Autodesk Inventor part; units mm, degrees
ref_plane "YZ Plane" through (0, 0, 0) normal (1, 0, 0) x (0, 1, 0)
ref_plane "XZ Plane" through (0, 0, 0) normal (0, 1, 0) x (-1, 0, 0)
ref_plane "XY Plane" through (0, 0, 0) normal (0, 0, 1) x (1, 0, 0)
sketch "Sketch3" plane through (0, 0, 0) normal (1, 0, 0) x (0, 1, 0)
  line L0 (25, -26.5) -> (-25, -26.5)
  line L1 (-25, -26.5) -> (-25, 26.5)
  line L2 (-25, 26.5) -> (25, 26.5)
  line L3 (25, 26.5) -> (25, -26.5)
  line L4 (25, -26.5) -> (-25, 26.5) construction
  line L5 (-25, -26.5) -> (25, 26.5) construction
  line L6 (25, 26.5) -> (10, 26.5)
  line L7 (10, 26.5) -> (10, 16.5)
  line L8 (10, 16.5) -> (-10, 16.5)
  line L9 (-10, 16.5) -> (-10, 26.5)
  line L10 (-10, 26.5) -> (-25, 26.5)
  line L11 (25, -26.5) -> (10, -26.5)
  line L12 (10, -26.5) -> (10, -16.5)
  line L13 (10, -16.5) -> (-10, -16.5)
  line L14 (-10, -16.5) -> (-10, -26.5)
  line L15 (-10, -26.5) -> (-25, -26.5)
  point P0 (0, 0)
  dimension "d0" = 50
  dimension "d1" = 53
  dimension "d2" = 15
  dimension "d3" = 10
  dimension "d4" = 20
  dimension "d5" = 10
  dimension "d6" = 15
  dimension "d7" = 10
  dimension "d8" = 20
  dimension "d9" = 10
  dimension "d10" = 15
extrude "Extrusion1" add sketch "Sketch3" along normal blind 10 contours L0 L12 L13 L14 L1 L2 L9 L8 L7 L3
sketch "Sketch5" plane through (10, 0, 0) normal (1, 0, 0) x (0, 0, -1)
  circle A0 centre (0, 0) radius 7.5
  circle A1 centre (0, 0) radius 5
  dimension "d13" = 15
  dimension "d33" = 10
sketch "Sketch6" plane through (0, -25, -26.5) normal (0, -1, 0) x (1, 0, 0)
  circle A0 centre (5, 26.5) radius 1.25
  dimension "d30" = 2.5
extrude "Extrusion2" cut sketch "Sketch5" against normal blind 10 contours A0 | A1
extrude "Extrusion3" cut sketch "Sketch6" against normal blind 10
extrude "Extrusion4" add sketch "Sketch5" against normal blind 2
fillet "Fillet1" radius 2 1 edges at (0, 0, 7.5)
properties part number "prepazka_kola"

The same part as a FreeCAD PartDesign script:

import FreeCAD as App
import Part
import Sketcher

V = App.Vector


def edges_at(feature, points):
    """Names of the edges that pass closest to the given points."""
    edges = feature.Shape.Edges
    near = lambda p: min(range(len(edges)), key=lambda i: edges[i].distToShape(Part.Vertex(*p))[0])
    return sorted({f"Edge{near(p) + 1}" for p in points})

doc = App.newDocument("Part")
params = doc.addObject("Spreadsheet::Sheet", "Params")
for row, (alias, value) in enumerate([
    ("sketch1_width", "15 mm"),
    ("sketch1_width2", "20 mm"),
    ("sketch1_height", "53 mm"),
    ("sketch1_height2", "10 mm"),
    ("pad1_length", "10 mm"),
    ("sketch2_diameter", "15 mm"),
    ("pocket1_length", "10 mm"),
    ("sketch3_diameter", "2.5 mm"),
    ("pocket2_length", "10 mm"),
    ("sketch4_diameter", "15 mm"),
    ("sketch4_diameter2", "10 mm"),
    ("pad2_length", "2 mm"),
    ("fillet_radius", "2 mm"),
], start=1):
    params.set(f"A{row}", alias)
    params.set(f"B{row}", "=" + value)
    params.setAlias(f"B{row}", alias)

body = doc.addObject("PartDesign::Body", "Body")

sketch1 = body.newObject("Sketcher::SketchObject", "Sketch")
sketch1.AttachmentSupport = (doc.getObject("YZ_Plane"), [""])
sketch1.MapMode = "FlatFace"
sketch1.addGeometry(Part.LineSegment(V(10, -26.5, 0), V(25, -26.5, 0)), False)
sketch1.addGeometry(Part.LineSegment(V(25, -26.5, 0), V(25, 26.5, 0)), False)
sketch1.addGeometry(Part.LineSegment(V(25, 26.5, 0), V(10, 26.5, 0)), False)
sketch1.addGeometry(Part.LineSegment(V(10, 26.5, 0), V(10, 16.5, 0)), False)
sketch1.addGeometry(Part.LineSegment(V(10, 16.5, 0), V(-10, 16.5, 0)), False)
sketch1.addGeometry(Part.LineSegment(V(-10, 16.5, 0), V(-10, 26.5, 0)), False)
sketch1.addGeometry(Part.LineSegment(V(-10, 26.5, 0), V(-25, 26.5, 0)), False)
sketch1.addGeometry(Part.LineSegment(V(-25, 26.5, 0), V(-25, -26.5, 0)), False)
sketch1.addGeometry(Part.LineSegment(V(-25, -26.5, 0), V(-10, -26.5, 0)), False)
sketch1.addGeometry(Part.LineSegment(V(-10, -26.5, 0), V(-10, -16.5, 0)), False)
sketch1.addGeometry(Part.LineSegment(V(-10, -16.5, 0), V(10, -16.5, 0)), False)
sketch1.addGeometry(Part.LineSegment(V(10, -16.5, 0), V(10, -26.5, 0)), False)
sketch1.addConstraint(Sketcher.Constraint("Coincident", 0, 2, 1, 1))
sketch1.addConstraint(Sketcher.Constraint("Coincident", 1, 2, 2, 1))
sketch1.addConstraint(Sketcher.Constraint("Coincident", 2, 2, 3, 1))
sketch1.addConstraint(Sketcher.Constraint("Coincident", 3, 2, 4, 1))
sketch1.addConstraint(Sketcher.Constraint("Coincident", 4, 2, 5, 1))
sketch1.addConstraint(Sketcher.Constraint("Coincident", 5, 2, 6, 1))
sketch1.addConstraint(Sketcher.Constraint("Coincident", 6, 2, 7, 1))
sketch1.addConstraint(Sketcher.Constraint("Coincident", 7, 2, 8, 1))
sketch1.addConstraint(Sketcher.Constraint("Coincident", 8, 2, 9, 1))
sketch1.addConstraint(Sketcher.Constraint("Coincident", 9, 2, 10, 1))
sketch1.addConstraint(Sketcher.Constraint("Coincident", 10, 2, 11, 1))
sketch1.addConstraint(Sketcher.Constraint("Coincident", 11, 2, 0, 1))
sketch1.addConstraint(Sketcher.Constraint("Horizontal", 0))
sketch1.addConstraint(Sketcher.Constraint("Vertical", 1))
sketch1.addConstraint(Sketcher.Constraint("Horizontal", 2))
sketch1.addConstraint(Sketcher.Constraint("Vertical", 3))
sketch1.addConstraint(Sketcher.Constraint("Horizontal", 4))
sketch1.addConstraint(Sketcher.Constraint("Vertical", 5))
sketch1.addConstraint(Sketcher.Constraint("Horizontal", 6))
sketch1.addConstraint(Sketcher.Constraint("Vertical", 7))
sketch1.addConstraint(Sketcher.Constraint("Horizontal", 8))
sketch1.addConstraint(Sketcher.Constraint("Vertical", 9))
sketch1.addConstraint(Sketcher.Constraint("Horizontal", 10))
sketch1.addConstraint(Sketcher.Constraint("Vertical", 11))
sketch1.addConstraint(Sketcher.Constraint("Symmetric", 0, 2, 6, 2, -1, 1))
sketch1.addConstraint(Sketcher.Constraint("Symmetric", 2, 2, 8, 2, -1, 1))
sketch1.addConstraint(Sketcher.Constraint("Symmetric", 4, 2, 10, 2, -1, 1))
sketch1.addConstraint(Sketcher.Constraint("Symmetric", 2, 2, 5, 2, -2))
sketch1.addConstraint(Sketcher.Constraint("DistanceX", 0, 1, 0, 2, 15.0))
sketch1.addConstraint(Sketcher.Constraint("DistanceX", 4, 2, 4, 1, 20.0))
sketch1.addConstraint(Sketcher.Constraint("DistanceY", 1, 1, 1, 2, 53.0))
sketch1.addConstraint(Sketcher.Constraint("DistanceY", 3, 2, 3, 1, 10.0))
sketch1.setExpression("Constraints[28]", "Params.sketch1_width")
sketch1.setExpression("Constraints[29]", "Params.sketch1_width2")
sketch1.setExpression("Constraints[30]", "Params.sketch1_height")
sketch1.setExpression("Constraints[31]", "Params.sketch1_height2")
pad1 = body.newObject("PartDesign::Pad", "Pad")
pad1.Profile = sketch1
pad1.setExpression("Length", "Params.pad1_length")

sketch2 = body.newObject("Sketcher::SketchObject", "Sketch001")
sketch2.AttachmentSupport = (doc.getObject("YZ_Plane"), [""])
sketch2.MapMode = "FlatFace"
sketch2.AttachmentOffset = App.Placement(V(0, 0, 10), App.Rotation())
sketch2.addGeometry(Part.Circle(V(0, 0, 0), V(0, 0, 1), 7.5), False)
sketch2.addConstraint(Sketcher.Constraint("Coincident", 0, 3, -1, 1))
sketch2.addConstraint(Sketcher.Constraint("Diameter", 0, 15.0))
sketch2.setExpression("Constraints[1]", "Params.sketch2_diameter")
pocket1 = body.newObject("PartDesign::Pocket", "Pocket")
pocket1.Profile = sketch2
pocket1.setExpression("Length", "Params.pocket1_length")

sketch3 = body.newObject("Sketcher::SketchObject", "Sketch002")
sketch3.AttachmentSupport = (doc.getObject("XZ_Plane"), [""])
sketch3.MapMode = "FlatFace"
sketch3.AttachmentOffset = App.Placement(V(0, 0, 25), App.Rotation())
sketch3.addGeometry(Part.Circle(V(5, 0, 0), V(0, 0, 1), 1.25), False)
sketch3.addConstraint(Sketcher.Constraint("PointOnObject", 0, 3, -1))
sketch3.addConstraint(Sketcher.Constraint("Diameter", 0, 2.5))
sketch3.addConstraint(Sketcher.Constraint("DistanceX", -1, 1, 0, 3, 5.0))
sketch3.setExpression("Constraints[1]", "Params.sketch3_diameter")
pocket2 = body.newObject("PartDesign::Pocket", "Pocket001")
pocket2.Profile = sketch3
pocket2.setExpression("Length", "Params.pocket2_length")

sketch4 = body.newObject("Sketcher::SketchObject", "Sketch003")
sketch4.AttachmentSupport = (doc.getObject("YZ_Plane"), [""])
sketch4.MapMode = "FlatFace"
sketch4.AttachmentOffset = App.Placement(V(0, 0, 10), App.Rotation())
sketch4.addGeometry(Part.Circle(V(0, 0, 0), V(0, 0, 1), 7.5), False)
sketch4.addGeometry(Part.Circle(V(0, 0, 0), V(0, 0, 1), 5), False)
sketch4.addConstraint(Sketcher.Constraint("Coincident", 0, 3, -1, 1))
sketch4.addConstraint(Sketcher.Constraint("Coincident", 1, 3, -1, 1))
sketch4.addConstraint(Sketcher.Constraint("Diameter", 0, 15.0))
sketch4.addConstraint(Sketcher.Constraint("Diameter", 1, 10.0))
sketch4.setExpression("Constraints[2]", "Params.sketch4_diameter")
sketch4.setExpression("Constraints[3]", "Params.sketch4_diameter2")
pad2 = body.newObject("PartDesign::Pad", "Pad001")
pad2.Profile = sketch4
pad2.setExpression("Length", "Params.pad2_length")
pad2.Reversed = True
doc.recompute()

fillet = body.newObject("PartDesign::Fillet", "Fillet")
fillet.Base = (pad2, edges_at(pad2, [(0, 0, 7.5)]))
fillet.setExpression("Radius", "Params.fillet_radius")

doc.recompute()
